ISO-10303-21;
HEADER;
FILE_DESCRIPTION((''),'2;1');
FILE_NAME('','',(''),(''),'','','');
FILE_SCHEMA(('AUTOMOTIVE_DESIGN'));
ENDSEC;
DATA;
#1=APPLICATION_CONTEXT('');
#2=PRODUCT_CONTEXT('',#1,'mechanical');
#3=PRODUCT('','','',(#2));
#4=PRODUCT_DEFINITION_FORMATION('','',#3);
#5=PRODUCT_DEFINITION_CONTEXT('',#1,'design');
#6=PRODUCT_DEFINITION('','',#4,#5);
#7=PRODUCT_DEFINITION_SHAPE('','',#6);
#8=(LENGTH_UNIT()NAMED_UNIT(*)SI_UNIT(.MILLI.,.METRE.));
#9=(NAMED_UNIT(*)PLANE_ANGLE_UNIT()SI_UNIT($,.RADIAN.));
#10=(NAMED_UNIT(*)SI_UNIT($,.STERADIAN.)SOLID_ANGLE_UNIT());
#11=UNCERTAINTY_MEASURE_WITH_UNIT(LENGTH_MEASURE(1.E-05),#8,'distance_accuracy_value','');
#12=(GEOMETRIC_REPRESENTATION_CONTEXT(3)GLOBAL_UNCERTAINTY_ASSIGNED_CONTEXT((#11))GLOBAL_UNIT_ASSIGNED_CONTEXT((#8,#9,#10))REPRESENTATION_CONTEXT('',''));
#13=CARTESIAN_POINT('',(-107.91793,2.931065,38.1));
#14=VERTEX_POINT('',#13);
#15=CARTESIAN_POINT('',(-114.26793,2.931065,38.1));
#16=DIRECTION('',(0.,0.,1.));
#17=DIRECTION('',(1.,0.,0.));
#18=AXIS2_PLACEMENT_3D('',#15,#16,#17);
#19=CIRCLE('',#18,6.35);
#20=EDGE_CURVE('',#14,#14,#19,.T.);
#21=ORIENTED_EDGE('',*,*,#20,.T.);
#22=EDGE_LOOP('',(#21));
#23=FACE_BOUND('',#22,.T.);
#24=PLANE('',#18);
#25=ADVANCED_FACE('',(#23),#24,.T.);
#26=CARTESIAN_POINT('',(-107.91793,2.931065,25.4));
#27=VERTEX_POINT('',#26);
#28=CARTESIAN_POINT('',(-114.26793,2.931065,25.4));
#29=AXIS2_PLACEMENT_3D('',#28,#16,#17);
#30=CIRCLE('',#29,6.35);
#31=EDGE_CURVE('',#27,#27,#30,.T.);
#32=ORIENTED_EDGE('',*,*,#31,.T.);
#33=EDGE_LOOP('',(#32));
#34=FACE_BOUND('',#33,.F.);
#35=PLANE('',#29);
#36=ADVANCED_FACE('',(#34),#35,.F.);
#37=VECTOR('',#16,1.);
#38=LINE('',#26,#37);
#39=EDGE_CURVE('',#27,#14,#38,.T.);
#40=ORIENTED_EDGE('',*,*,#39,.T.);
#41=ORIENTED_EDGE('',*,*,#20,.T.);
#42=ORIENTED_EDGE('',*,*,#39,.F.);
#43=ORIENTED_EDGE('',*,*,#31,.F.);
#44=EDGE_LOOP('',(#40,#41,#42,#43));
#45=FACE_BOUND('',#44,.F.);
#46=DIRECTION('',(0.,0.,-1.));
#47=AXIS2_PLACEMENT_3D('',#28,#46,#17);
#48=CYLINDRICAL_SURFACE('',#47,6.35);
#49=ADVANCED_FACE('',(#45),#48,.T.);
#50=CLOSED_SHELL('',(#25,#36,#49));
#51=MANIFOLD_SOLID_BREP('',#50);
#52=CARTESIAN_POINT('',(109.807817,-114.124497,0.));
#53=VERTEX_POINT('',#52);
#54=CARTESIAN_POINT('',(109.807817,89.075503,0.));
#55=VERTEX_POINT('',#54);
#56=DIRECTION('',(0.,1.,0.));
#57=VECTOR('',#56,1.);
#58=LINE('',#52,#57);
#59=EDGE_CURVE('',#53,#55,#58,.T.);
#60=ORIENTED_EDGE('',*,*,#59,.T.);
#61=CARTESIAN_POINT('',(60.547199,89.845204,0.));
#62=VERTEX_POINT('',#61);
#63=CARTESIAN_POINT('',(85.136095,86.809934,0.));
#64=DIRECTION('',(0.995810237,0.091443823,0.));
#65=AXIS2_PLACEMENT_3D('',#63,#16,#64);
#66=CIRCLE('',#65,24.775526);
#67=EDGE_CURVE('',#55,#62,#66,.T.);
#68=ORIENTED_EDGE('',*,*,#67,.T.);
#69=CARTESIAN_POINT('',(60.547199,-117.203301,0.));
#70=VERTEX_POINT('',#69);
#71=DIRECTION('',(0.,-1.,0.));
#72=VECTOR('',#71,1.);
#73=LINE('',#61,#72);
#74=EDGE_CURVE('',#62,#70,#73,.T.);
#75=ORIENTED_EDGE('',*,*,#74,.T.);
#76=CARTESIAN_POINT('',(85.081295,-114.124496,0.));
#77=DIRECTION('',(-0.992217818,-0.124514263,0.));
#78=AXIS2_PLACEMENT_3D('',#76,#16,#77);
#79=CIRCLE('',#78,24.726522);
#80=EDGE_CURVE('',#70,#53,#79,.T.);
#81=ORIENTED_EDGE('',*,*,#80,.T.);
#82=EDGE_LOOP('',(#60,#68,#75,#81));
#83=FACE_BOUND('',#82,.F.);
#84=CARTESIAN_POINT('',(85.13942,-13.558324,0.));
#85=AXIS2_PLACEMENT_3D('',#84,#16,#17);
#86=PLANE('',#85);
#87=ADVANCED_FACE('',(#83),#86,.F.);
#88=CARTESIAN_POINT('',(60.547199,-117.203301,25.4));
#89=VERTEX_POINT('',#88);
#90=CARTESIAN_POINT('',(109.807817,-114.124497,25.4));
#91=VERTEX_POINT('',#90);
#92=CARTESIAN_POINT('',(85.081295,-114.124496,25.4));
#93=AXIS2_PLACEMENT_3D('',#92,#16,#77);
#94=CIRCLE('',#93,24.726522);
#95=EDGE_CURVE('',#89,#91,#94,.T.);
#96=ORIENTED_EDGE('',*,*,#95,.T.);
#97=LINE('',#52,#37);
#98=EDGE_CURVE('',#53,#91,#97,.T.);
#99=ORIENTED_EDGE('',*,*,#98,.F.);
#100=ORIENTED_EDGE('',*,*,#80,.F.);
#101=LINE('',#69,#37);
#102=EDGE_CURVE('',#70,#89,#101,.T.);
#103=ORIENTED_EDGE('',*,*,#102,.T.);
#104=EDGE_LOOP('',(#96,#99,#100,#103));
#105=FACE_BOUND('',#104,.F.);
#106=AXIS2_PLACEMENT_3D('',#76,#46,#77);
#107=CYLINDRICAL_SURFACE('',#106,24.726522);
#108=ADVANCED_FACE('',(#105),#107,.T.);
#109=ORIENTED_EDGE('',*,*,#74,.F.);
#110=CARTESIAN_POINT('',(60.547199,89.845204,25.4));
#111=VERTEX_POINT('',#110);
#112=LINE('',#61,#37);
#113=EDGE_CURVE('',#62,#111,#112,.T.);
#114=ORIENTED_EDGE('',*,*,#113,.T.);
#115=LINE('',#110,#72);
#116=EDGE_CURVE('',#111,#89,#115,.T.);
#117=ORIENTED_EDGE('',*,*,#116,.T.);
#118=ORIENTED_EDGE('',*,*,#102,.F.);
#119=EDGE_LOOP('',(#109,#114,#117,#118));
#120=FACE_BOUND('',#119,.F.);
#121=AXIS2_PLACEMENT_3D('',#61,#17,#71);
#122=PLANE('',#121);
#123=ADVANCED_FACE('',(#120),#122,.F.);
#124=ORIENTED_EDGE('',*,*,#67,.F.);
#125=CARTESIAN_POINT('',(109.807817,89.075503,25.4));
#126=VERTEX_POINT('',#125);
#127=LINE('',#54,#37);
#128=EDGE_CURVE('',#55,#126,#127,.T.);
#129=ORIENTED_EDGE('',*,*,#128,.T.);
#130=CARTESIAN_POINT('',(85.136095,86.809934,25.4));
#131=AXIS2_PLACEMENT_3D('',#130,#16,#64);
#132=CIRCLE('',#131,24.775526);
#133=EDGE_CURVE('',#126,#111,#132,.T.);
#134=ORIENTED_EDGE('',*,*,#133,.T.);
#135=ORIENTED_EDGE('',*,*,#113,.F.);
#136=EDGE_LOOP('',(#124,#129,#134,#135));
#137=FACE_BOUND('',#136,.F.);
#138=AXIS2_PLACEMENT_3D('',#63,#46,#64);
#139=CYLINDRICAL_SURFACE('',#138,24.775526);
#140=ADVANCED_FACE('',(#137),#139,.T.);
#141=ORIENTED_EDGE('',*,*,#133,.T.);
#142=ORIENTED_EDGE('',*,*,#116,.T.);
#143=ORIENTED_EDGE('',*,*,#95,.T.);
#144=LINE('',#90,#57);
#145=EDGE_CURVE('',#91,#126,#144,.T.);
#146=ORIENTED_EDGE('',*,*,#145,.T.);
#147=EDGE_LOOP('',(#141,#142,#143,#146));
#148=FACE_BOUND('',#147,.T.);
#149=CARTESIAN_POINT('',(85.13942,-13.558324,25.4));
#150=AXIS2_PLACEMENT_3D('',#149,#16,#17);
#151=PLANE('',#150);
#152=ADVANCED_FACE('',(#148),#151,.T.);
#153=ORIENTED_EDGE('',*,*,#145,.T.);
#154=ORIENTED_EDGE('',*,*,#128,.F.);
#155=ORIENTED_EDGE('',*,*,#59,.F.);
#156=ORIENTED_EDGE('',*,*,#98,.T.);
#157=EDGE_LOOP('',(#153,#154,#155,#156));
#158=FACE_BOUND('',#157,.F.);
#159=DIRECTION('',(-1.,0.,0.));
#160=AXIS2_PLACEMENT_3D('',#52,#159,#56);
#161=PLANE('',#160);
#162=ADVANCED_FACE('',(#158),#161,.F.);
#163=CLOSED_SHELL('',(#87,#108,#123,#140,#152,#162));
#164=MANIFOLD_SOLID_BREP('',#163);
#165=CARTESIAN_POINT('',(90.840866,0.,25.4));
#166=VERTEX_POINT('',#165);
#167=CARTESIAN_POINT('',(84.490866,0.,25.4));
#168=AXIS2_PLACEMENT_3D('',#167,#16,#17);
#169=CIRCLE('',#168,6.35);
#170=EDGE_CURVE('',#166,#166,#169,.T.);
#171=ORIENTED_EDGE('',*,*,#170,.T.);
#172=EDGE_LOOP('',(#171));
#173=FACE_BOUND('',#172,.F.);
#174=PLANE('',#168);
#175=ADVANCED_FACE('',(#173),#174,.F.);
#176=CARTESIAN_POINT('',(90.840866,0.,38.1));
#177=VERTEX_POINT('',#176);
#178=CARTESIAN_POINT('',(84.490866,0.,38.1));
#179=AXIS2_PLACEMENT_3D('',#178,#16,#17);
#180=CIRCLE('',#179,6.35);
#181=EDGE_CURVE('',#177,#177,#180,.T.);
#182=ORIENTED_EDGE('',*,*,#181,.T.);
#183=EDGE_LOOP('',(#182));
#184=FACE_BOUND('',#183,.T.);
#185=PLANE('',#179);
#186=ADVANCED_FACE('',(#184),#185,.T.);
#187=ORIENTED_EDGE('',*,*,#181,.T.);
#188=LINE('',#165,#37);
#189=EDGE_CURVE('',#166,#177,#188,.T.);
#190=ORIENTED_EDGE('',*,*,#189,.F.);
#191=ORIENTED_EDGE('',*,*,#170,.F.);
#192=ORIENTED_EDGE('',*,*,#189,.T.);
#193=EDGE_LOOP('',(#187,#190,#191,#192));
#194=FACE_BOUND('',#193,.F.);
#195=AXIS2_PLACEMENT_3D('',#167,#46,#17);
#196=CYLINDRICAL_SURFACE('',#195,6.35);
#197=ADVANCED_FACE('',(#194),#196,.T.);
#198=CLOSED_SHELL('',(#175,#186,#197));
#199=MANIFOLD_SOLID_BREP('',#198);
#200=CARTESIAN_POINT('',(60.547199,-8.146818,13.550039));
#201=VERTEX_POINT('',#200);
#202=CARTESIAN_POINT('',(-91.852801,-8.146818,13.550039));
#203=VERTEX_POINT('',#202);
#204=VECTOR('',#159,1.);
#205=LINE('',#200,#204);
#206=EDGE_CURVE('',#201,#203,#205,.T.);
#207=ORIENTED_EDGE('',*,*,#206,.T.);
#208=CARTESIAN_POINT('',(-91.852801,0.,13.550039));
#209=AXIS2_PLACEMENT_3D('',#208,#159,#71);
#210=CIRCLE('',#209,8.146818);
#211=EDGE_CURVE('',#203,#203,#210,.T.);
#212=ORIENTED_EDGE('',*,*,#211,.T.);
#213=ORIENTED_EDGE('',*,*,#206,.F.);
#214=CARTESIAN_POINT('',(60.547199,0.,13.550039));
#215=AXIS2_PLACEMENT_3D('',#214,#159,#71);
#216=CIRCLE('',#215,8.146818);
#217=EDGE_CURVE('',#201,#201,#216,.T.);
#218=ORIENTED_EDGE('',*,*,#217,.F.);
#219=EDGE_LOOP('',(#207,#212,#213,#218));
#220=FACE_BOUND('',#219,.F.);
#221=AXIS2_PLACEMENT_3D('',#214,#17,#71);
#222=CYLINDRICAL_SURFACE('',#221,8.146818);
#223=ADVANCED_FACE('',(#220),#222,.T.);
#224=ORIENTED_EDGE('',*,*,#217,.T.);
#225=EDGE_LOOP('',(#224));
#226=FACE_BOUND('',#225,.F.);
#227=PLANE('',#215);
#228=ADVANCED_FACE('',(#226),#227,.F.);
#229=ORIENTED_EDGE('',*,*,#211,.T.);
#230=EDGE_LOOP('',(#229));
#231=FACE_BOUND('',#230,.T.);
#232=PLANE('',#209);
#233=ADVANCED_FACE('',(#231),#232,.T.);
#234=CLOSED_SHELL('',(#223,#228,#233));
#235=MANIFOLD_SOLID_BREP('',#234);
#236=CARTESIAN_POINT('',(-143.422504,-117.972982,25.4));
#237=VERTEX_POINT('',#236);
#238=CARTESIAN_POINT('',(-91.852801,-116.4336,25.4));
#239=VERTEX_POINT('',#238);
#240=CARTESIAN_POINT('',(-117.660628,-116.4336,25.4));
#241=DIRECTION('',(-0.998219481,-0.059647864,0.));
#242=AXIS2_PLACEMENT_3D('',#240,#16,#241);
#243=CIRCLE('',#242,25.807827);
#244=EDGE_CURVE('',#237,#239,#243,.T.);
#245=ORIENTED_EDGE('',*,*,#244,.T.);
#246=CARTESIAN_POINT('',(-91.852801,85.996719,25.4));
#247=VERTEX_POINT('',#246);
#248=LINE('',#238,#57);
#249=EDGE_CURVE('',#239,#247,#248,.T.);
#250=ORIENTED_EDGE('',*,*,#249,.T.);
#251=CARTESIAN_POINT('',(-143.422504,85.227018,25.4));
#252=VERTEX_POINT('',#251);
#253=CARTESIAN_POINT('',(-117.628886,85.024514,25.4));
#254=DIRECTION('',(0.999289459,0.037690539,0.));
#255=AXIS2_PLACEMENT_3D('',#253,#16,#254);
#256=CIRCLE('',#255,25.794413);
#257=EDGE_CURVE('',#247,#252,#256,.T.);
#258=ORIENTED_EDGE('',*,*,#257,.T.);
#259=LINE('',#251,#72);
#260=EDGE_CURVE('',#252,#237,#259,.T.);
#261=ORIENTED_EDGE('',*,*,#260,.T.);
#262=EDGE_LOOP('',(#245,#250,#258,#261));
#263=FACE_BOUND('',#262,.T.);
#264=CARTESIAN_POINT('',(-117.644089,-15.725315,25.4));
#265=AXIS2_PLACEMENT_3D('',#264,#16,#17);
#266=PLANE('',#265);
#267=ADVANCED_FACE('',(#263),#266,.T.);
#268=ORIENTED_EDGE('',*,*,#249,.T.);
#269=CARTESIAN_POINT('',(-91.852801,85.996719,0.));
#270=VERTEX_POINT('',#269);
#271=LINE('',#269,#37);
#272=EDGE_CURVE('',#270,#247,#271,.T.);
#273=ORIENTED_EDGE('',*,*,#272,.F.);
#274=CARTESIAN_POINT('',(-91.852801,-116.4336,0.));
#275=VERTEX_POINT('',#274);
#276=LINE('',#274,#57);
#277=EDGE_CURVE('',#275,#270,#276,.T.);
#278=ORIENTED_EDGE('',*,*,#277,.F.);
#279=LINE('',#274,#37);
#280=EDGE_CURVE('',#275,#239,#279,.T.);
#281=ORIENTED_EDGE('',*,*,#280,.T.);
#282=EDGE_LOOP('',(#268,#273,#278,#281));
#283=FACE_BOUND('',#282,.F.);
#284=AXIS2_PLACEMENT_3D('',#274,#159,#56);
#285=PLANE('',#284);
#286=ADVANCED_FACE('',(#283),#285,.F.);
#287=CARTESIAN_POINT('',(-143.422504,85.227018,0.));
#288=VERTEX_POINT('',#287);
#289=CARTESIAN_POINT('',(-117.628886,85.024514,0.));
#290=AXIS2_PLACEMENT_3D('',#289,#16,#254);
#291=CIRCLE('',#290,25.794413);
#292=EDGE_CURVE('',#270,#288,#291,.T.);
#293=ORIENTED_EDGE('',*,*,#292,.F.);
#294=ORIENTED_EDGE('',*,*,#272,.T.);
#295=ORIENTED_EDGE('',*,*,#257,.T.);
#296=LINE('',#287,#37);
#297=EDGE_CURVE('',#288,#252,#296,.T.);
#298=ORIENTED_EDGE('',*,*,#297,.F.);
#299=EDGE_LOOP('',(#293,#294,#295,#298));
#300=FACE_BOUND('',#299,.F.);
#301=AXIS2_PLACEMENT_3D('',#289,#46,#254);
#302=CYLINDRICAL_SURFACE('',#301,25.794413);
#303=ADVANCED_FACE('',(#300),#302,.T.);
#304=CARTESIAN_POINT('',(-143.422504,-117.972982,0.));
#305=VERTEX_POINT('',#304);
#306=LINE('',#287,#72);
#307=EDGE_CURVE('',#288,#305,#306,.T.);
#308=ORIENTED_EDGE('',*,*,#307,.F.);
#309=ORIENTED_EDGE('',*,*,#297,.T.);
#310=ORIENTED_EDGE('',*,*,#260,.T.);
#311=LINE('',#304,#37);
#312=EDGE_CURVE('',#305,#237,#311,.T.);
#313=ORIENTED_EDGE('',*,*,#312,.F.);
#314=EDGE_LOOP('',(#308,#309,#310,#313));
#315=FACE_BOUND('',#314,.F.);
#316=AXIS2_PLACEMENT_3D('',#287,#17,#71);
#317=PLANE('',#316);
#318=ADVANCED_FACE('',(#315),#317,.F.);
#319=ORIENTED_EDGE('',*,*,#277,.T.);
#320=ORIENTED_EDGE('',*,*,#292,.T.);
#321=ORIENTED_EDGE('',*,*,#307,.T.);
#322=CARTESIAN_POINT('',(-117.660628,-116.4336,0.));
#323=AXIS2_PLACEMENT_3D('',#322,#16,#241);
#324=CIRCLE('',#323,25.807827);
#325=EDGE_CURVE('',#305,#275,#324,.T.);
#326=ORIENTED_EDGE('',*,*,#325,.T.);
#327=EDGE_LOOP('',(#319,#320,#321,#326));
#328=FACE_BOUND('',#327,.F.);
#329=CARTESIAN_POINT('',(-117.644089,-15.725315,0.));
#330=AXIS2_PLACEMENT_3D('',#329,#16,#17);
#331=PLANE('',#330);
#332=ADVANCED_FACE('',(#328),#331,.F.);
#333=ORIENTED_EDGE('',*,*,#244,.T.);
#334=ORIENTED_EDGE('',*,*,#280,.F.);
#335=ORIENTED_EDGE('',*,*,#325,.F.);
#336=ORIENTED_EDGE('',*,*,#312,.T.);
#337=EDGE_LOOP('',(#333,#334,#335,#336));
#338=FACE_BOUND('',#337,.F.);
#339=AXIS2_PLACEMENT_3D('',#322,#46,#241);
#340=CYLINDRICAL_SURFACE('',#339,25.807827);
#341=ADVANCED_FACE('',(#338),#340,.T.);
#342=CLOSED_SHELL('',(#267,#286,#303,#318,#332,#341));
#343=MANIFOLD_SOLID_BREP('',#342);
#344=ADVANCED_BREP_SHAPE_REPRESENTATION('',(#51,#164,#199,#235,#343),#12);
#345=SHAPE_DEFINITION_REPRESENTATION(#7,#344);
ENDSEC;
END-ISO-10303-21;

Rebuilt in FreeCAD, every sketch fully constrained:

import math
import FreeCAD as App
import Part
import Sketcher
from FreeCAD import Vector
Q = App.Units.Quantity

doc = App.newDocument("Part")
body = doc.addObject("PartDesign::Body", "Body")
body.AllowCompound = True

# Sketch on XY plane
sketch1 = body.newObject("Sketcher::SketchObject", "Sketch")
sketch1.AttachmentSupport = (doc.getObject("XY_Plane"), [""])
sketch1.MapMode = "FlatFace"
sketch1.addGeometry(Part.LineSegment(Vector(-92, -116, 0), Vector(-92, 86, 0)), False)
sketch1.addGeometry(Part.ArcOfCircle(Part.Circle(Vector(-118, 85, 0), Vector(0, 0, 1), 26), math.radians(2), math.radians(180)), False)
sketch1.addGeometry(Part.LineSegment(Vector(-143, 85, 0), Vector(-143, -118, 0)), False)
sketch1.addGeometry(Part.ArcOfCircle(Part.Circle(Vector(-118, -116, 0), Vector(0, 0, 1), 26), math.radians(-177), math.radians(0)), False)
sketch1.addGeometry(Part.LineSegment(Vector(110, -114, 0), Vector(110, 89, 0)), False)
sketch1.addGeometry(Part.ArcOfCircle(Part.Circle(Vector(85, 87, 0), Vector(0, 0, 1), 25), math.radians(5), math.radians(173)), False)
sketch1.addGeometry(Part.LineSegment(Vector(61, 90, 0), Vector(61, -117, 0)), False)
sketch1.addGeometry(Part.ArcOfCircle(Part.Circle(Vector(85, -114, 0), Vector(0, 0, 1), 25), math.radians(-173), math.radians(0)), False)
sketch1.addConstraint(Sketcher.Constraint("Coincident", 0, 2, 1, 1))
sketch1.addConstraint(Sketcher.Constraint("Coincident", 1, 2, 2, 1))
sketch1.addConstraint(Sketcher.Constraint("Coincident", 2, 2, 3, 1))
sketch1.addConstraint(Sketcher.Constraint("Tangent", 3, 2, 0, 1))
sketch1.addConstraint(Sketcher.Constraint("Coincident", 4, 2, 5, 1))
sketch1.addConstraint(Sketcher.Constraint("Coincident", 5, 2, 6, 1))
sketch1.addConstraint(Sketcher.Constraint("Coincident", 6, 2, 7, 1))
sketch1.addConstraint(Sketcher.Constraint("Tangent", 7, 2, 4, 1))
sketch1.addConstraint(Sketcher.Constraint("Vertical", 0))
sketch1.addConstraint(Sketcher.Constraint("Vertical", 2))
sketch1.addConstraint(Sketcher.Constraint("Vertical", 4))
sketch1.addConstraint(Sketcher.Constraint("Vertical", 6))
sketch1.addConstraint(Sketcher.Constraint("Equal", 2, 4))
sketch1.addConstraint(Sketcher.Constraint("DistanceY", 2, 2, 2, 1, Q("8 in")))
sketch1.addConstraint(Sketcher.Constraint("DistanceX", 0, 2, 5, 2, Q("6 in")))
sketch1.addConstraint(Sketcher.Constraint("DistanceY", 3, 3, -1, 1, Q("4.584 in")))
sketch1.addConstraint(Sketcher.Constraint("Radius", 1, 25.794413))
sketch1.addConstraint(Sketcher.Constraint("Radius", 3, 25.807827))
sketch1.addConstraint(Sketcher.Constraint("Radius", 5, 24.775526))
sketch1.addConstraint(Sketcher.Constraint("Radius", 7, 24.726522))
sketch1.addConstraint(Sketcher.Constraint("DistanceY", 0, 1, 0, 2, 202.430319))
sketch1.addConstraint(Sketcher.Constraint("DistanceX", 0, 2, -1, 1, 91.852801))
sketch1.addConstraint(Sketcher.Constraint("DistanceY", 6, 2, -1, 1, 117.203301))
sketch1.addConstraint(Sketcher.Constraint("DistanceX", 7, 3, 5, 3, 0.0548))
sketch1.addConstraint(Sketcher.Constraint("DistanceY", 1, 2, 0, 2, 0.769701))
sketch1.addConstraint(Sketcher.Constraint("DistanceX", 1, 2, 5, 3, 228.558599))
pad1 = body.newObject("PartDesign::Pad", "Pad")
pad1.Profile = sketch1
pad1.Length = Q("1 in")
body2 = doc.addObject("PartDesign::Body", "Body001")

# Sketch on YZ plane
sketch2 = body2.newObject("Sketcher::SketchObject", "Sketch001")
sketch2.AttachmentSupport = (doc.getObject("YZ_Plane001"), [""])
sketch2.MapMode = "FlatFace"
sketch2.AttachmentOffset = App.Placement(Vector(0, 0, 60.547199), App.Rotation())
sketch2.addGeometry(Part.Circle(Vector(0, 14, 0), Vector(0, 0, 1), 8), False)
sketch2.addConstraint(Sketcher.Constraint("PointOnObject", 0, 3, -2))
sketch2.addConstraint(Sketcher.Constraint("Diameter", 0, 16.293636))
sketch2.addConstraint(Sketcher.Constraint("DistanceY", -1, 1, 0, 3, 13.550039))
pad2 = body2.newObject("PartDesign::Pad", "Pad001")
pad2.Profile = sketch2
pad2.Length = Q("6 in")
pad2.Reversed = True
body3 = doc.addObject("PartDesign::Body", "Body002")
body3.AllowCompound = True

# Sketch on XY plane
sketch3 = body3.newObject("Sketcher::SketchObject", "Sketch002")
sketch3.AttachmentSupport = (doc.getObject("XY_Plane002"), [""])
sketch3.MapMode = "FlatFace"
sketch3.AttachmentOffset = App.Placement(Vector(0, 0, 1 * 25.4), App.Rotation())
sketch3.addGeometry(Part.Circle(Vector(-114, 3, 0), Vector(0, 0, 1), 6), False)
sketch3.addGeometry(Part.Circle(Vector(84, 0, 0), Vector(0, 0, 1), 6), False)
sketch3.addConstraint(Sketcher.Constraint("Equal", 0, 1))
sketch3.addConstraint(Sketcher.Constraint("PointOnObject", 1, 3, -1))
sketch3.addConstraint(Sketcher.Constraint("Diameter", 0, Q("0.5 in")))
sketch3.addConstraint(Sketcher.Constraint("DistanceX", 0, 3, -1, 1, 114.26793))
sketch3.addConstraint(Sketcher.Constraint("DistanceY", -1, 1, 0, 3, 2.931065))
sketch3.addConstraint(Sketcher.Constraint("DistanceX", -1, 1, 1, 3, 84.490866))
pad3 = body3.newObject("PartDesign::Pad", "Pad002")
pad3.Profile = sketch3
pad3.Length = Q("0.5 in")

doc.recompute()
